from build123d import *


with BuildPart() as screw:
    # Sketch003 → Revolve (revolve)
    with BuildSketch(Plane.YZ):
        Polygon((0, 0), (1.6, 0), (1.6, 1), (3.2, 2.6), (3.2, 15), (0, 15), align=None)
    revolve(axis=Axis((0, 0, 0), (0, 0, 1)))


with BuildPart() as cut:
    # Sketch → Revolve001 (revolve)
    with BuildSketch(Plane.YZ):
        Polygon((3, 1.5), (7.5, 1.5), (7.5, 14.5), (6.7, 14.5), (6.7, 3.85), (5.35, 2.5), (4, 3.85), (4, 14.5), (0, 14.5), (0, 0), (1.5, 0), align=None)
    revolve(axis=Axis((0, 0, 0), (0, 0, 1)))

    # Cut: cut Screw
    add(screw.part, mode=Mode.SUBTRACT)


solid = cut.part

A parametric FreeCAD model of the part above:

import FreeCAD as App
import Part
import Sketcher

V = App.Vector
Q = App.Units.Quantity

doc = App.newDocument("Part")
body = doc.addObject("PartDesign::Body", "Body")

# Sketch on YZ plane
sketch1 = body.newObject("Sketcher::SketchObject", "Sketch")
sketch1.AttachmentSupport = (doc.getObject("YZ_Plane"), [""])
sketch1.MapMode = "FlatFace"
sketch1.addGeometry(Part.LineSegment(V(0, 0, 0), V(1.6, 0, 0)), False)
sketch1.addGeometry(Part.LineSegment(V(1.6, 0, 0), V(1.6, 1, 0)), False)
sketch1.addGeometry(Part.LineSegment(V(1.6, 1, 0), V(3.2, 2.6, 0)), False)
sketch1.addGeometry(Part.LineSegment(V(3.2, 2.6, 0), V(3.2, 15, 0)), False)
sketch1.addGeometry(Part.LineSegment(V(3.2, 15, 0), V(0, 15, 0)), False)
sketch1.addGeometry(Part.LineSegment(V(0, 15, 0), V(0, 0, 0)), False)
sketch1.addConstraint(Sketcher.Constraint("Coincident", 0, 2, 1, 1))
sketch1.addConstraint(Sketcher.Constraint("Coincident", 1, 2, 2, 1))
sketch1.addConstraint(Sketcher.Constraint("Coincident", 2, 2, 3, 1))
sketch1.addConstraint(Sketcher.Constraint("Coincident", 3, 2, 4, 1))
sketch1.addConstraint(Sketcher.Constraint("Coincident", 4, 2, 5, 1))
sketch1.addConstraint(Sketcher.Constraint("Coincident", 5, 2, 0, 1))
sketch1.addConstraint(Sketcher.Constraint("Horizontal", 0))
sketch1.addConstraint(Sketcher.Constraint("Vertical", 1))
sketch1.addConstraint(Sketcher.Constraint("Vertical", 3))
sketch1.addConstraint(Sketcher.Constraint("Horizontal", 4))
sketch1.addConstraint(Sketcher.Constraint("Vertical", 5))
sketch1.addConstraint(Sketcher.Constraint("Coincident", 5, 2, -1, 1))
sketch1.addConstraint(Sketcher.Constraint("DistanceY", 1, 1, 1, 2, 1.0))
sketch1.addConstraint(Sketcher.Constraint("DistanceY", 5, 2, 5, 1, 15.0))
sketch1.addConstraint(Sketcher.Constraint("Angle", 2, Q("45 deg")))
sketch1.addConstraint(Sketcher.Constraint("DistanceX", 0, 1, 0, 2, 1.6))
sketch1.addConstraint(Sketcher.Constraint("DistanceX", 4, 2, 4, 1, 3.2))
revolution = body.newObject("PartDesign::Revolution", "Revolution")
revolution.Profile = sketch1
revolution.ReferenceAxis = (sketch1, ["V_Axis"])
revolution.Angle = 360
body2 = doc.addObject("PartDesign::Body", "Body001")

# Sketch on YZ plane
sketch2 = body2.newObject("Sketcher::SketchObject", "Sketch001")
sketch2.AttachmentSupport = (doc.getObject("YZ_Plane001"), [""])
sketch2.MapMode = "FlatFace"
sketch2.addGeometry(Part.LineSegment(V(3, 1.5, 0), V(7.5, 1.5, 0)), False)
sketch2.addGeometry(Part.LineSegment(V(7.5, 1.5, 0), V(7.5, 14.5, 0)), False)
sketch2.addGeometry(Part.LineSegment(V(7.5, 14.5, 0), V(6.7, 14.5, 0)), False)
sketch2.addGeometry(Part.LineSegment(V(6.7, 14.5, 0), V(6.7, 3.9, 0)), False)
sketch2.addGeometry(Part.LineSegment(V(6.7, 3.9, 0), V(5.3, 2.5, 0)), False)
sketch2.addGeometry(Part.LineSegment(V(5.3, 2.5, 0), V(4, 3.9, 0)), False)
sketch2.addGeometry(Part.LineSegment(V(4, 3.9, 0), V(4, 14.5, 0)), False)
sketch2.addGeometry(Part.LineSegment(V(4, 14.5, 0), V(0, 14.5, 0)), False)
sketch2.addGeometry(Part.LineSegment(V(0, 14.5, 0), V(0, 0, 0)), False)
sketch2.addGeometry(Part.LineSegment(V(0, 0, 0), V(1.5, 0, 0)), False)
sketch2.addGeometry(Part.LineSegment(V(1.5, 0, 0), V(3, 1.5, 0)), False)
sketch2.addConstraint(Sketcher.Constraint("Coincident", 0, 2, 1, 1))
sketch2.addConstraint(Sketcher.Constraint("Coincident", 1, 2, 2, 1))
sketch2.addConstraint(Sketcher.Constraint("Coincident", 2, 2, 3, 1))
sketch2.addConstraint(Sketcher.Constraint("Coincident", 3, 2, 4, 1))
sketch2.addConstraint(Sketcher.Constraint("Coincident", 4, 2, 5, 1))
sketch2.addConstraint(Sketcher.Constraint("Coincident", 5, 2, 6, 1))
sketch2.addConstraint(Sketcher.Constraint("Coincident", 6, 2, 7, 1))
sketch2.addConstraint(Sketcher.Constraint("Coincident", 7, 2, 8, 1))
sketch2.addConstraint(Sketcher.Constraint("Coincident", 8, 2, 9, 1))
sketch2.addConstraint(Sketcher.Constraint("Coincident", 9, 2, 10, 1))
sketch2.addConstraint(Sketcher.Constraint("Coincident", 10, 2, 0, 1))
sketch2.addConstraint(Sketcher.Constraint("Horizontal", 0))
sketch2.addConstraint(Sketcher.Constraint("Vertical", 1))
sketch2.addConstraint(Sketcher.Constraint("Horizontal", 2))
sketch2.addConstraint(Sketcher.Constraint("Vertical", 3))
sketch2.addConstraint(Sketcher.Constraint("Vertical", 6))
sketch2.addConstraint(Sketcher.Constraint("Horizontal", 7))
sketch2.addConstraint(Sketcher.Constraint("Vertical", 8))
sketch2.addConstraint(Sketcher.Constraint("Horizontal", 9))
sketch2.addConstraint(Sketcher.Constraint("Coincident", 8, 2, -1, 1))
sketch2.addConstraint(Sketcher.Constraint("Perpendicular", 4, 5))
sketch2.addConstraint(Sketcher.Constraint("Perpendicular", 5, 10))
sketch2.addConstraint(Sketcher.Constraint("Horizontal", 3, 2, 5, 2))
sketch2.addConstraint(Sketcher.Constraint("Horizontal", 2, 2, 6, 2))
sketch2.addConstraint(Sketcher.Constraint("Equal", 4, 5))
sketch2.addConstraint(Sketcher.Constraint("DistanceX", 7, 2, 7, 1, 4.0))
sketch2.addConstraint(Sketcher.Constraint("DistanceY", 1, 1, 1, 2, 13.0))
sketch2.addConstraint(Sketcher.Constraint("DistanceX", 0, 1, 0, 2, 4.5))
sketch2.addConstraint(Sketcher.Constraint("DistanceX", 2, 2, 2, 1, 0.8))
sketch2.addConstraint(Sketcher.Constraint("DistanceX", 9, 1, 9, 2, 1.5))
sketch2.addConstraint(Sketcher.Constraint("DistanceY", 8, 2, 8, 1, 14.5))
sketch2.addConstraint(Sketcher.Constraint("DistanceY", 0, 2, 4, 2, 1.0))
revolution2 = body2.newObject("PartDesign::Revolution", "Revolution001")
revolution2.Profile = sketch2
revolution2.ReferenceAxis = (sketch2, ["V_Axis"])
revolution2.Angle = 360
doc.recompute()

boolean = body2.newObject("PartDesign::Boolean", "Boolean")
boolean.Type = "Cut"
boolean.addObjects([body])

doc.recompute()
